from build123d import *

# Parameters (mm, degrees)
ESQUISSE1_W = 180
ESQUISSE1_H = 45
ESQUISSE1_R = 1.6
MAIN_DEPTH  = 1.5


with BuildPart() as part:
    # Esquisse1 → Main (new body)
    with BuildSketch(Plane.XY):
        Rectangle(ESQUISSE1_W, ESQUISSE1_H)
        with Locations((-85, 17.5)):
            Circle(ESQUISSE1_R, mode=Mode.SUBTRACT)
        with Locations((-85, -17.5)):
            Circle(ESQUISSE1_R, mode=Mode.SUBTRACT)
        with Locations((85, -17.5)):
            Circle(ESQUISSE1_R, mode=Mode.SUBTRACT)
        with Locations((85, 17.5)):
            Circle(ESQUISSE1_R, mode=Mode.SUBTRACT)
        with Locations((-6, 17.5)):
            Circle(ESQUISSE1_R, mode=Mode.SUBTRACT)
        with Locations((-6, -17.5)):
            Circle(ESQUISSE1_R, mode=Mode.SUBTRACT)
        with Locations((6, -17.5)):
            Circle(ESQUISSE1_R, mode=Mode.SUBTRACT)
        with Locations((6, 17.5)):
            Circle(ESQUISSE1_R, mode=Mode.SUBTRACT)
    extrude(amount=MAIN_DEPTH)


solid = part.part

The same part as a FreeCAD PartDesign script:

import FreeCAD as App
import Part
import Sketcher


def add_polygon(sketch, points):
    """Adds a closed chain of lines whose ends are joined by coincident constraints."""
    first, n = sketch.GeometryCount, len(points)
    for a, b in zip(points, points[1:] + points[:1]):
        sketch.addGeometry(Part.LineSegment(App.Vector(*a, 0), App.Vector(*b, 0)), False)
    for i in range(n):
        sketch.addConstraint(Sketcher.Constraint("Coincident", first + i, 2, first + (i + 1) % n, 1))

doc = App.newDocument("Part")
body = doc.addObject("PartDesign::Body", "Body")

# Sketch on XY plane
sketch1 = doc.addObject("Sketcher::SketchObject", "Sketch")
body.addObject(sketch1)
sketch1.AttachmentSupport = (doc.XY_Plane, [""])
sketch1.MapMode = "FlatFace"
add_polygon(sketch1, [(-90, 22.5), (-90, -22.5), (90, -22.5), (90, 22.5)])  # lines 0-3
sketch1.addGeometry(Part.Circle(App.Vector(-85, -17.5, 0), App.Vector(0, 0, 1), 1.6), False)  # 4
sketch1.addGeometry(Part.Circle(App.Vector(-6, -17.5, 0), App.Vector(0, 0, 1), 1.6), False)  # 5
sketch1.addGeometry(Part.Circle(App.Vector(6, -17.5, 0), App.Vector(0, 0, 1), 1.6), False)  # 6
sketch1.addGeometry(Part.Circle(App.Vector(85, -17.5, 0), App.Vector(0, 0, 1), 1.6), False)  # 7
sketch1.addGeometry(Part.Circle(App.Vector(-85, 17.5, 0), App.Vector(0, 0, 1), 1.6), False)  # 8
sketch1.addGeometry(Part.Circle(App.Vector(-6, 17.5, 0), App.Vector(0, 0, 1), 1.6), False)  # 9
sketch1.addGeometry(Part.Circle(App.Vector(6, 17.5, 0), App.Vector(0, 0, 1), 1.6), False)  # 10
sketch1.addGeometry(Part.Circle(App.Vector(85, 17.5, 0), App.Vector(0, 0, 1), 1.6), False)  # 11
sketch1.addConstraint(Sketcher.Constraint("Vertical", 0))
sketch1.addConstraint(Sketcher.Constraint("Horizontal", 1))
sketch1.addConstraint(Sketcher.Constraint("Vertical", 2))
sketch1.addConstraint(Sketcher.Constraint("Horizontal", 3))
sketch1.addConstraint(Sketcher.Constraint("Equal", 4, 5))
sketch1.addConstraint(Sketcher.Constraint("Equal", 5, 6))
sketch1.addConstraint(Sketcher.Constraint("Equal", 6, 7))
sketch1.addConstraint(Sketcher.Constraint("Equal", 7, 8))
sketch1.addConstraint(Sketcher.Constraint("Equal", 8, 9))
sketch1.addConstraint(Sketcher.Constraint("Equal", 9, 10))
sketch1.addConstraint(Sketcher.Constraint("Equal", 10, 11))
sketch1.addConstraint(Sketcher.Constraint("Symmetric", 7, 3, 8, 3, -1, 1))
sketch1.addConstraint(Sketcher.Constraint("Symmetric", 6, 3, 9, 3, -1, 1))
sketch1.addConstraint(Sketcher.Constraint("Symmetric", 5, 3, 10, 3, -1, 1))
sketch1.addConstraint(Sketcher.Constraint("Symmetric", 4, 3, 11, 3, -1, 1))
sketch1.addConstraint(Sketcher.Constraint("Symmetric", 0, 2, 2, 2, -1, 1))
sketch1.addConstraint(Sketcher.Constraint("Symmetric", 5, 3, 6, 3, -2))
sketch1.addConstraint(Sketcher.Constraint("Symmetric", 4, 3, 7, 3, -2))
sketch1.addConstraint(Sketcher.Constraint("Horizontal", 4, 3, 5, 3))
sketch1.addConstraint(Sketcher.Constraint("Diameter", 4, 3.2))
sketch1.addConstraint(Sketcher.Constraint("DistanceX", 1, 1, 1, 2, 180.0))
sketch1.addConstraint(Sketcher.Constraint("DistanceY", 0, 2, 0, 1, 45.0))
sketch1.addConstraint(Sketcher.Constraint("DistanceX", 4, 3, -1, 1, 85.0))
sketch1.addConstraint(Sketcher.Constraint("DistanceX", 5, 3, -1, 1, 6.0))
sketch1.addConstraint(Sketcher.Constraint("DistanceY", 4, 3, 8, 3, 35.0))
pad1 = doc.addObject("PartDesign::Pad", "Pad")
body.addObject(pad1)
pad1.Profile = sketch1
pad1.Length = 1.5

doc.recompute()
